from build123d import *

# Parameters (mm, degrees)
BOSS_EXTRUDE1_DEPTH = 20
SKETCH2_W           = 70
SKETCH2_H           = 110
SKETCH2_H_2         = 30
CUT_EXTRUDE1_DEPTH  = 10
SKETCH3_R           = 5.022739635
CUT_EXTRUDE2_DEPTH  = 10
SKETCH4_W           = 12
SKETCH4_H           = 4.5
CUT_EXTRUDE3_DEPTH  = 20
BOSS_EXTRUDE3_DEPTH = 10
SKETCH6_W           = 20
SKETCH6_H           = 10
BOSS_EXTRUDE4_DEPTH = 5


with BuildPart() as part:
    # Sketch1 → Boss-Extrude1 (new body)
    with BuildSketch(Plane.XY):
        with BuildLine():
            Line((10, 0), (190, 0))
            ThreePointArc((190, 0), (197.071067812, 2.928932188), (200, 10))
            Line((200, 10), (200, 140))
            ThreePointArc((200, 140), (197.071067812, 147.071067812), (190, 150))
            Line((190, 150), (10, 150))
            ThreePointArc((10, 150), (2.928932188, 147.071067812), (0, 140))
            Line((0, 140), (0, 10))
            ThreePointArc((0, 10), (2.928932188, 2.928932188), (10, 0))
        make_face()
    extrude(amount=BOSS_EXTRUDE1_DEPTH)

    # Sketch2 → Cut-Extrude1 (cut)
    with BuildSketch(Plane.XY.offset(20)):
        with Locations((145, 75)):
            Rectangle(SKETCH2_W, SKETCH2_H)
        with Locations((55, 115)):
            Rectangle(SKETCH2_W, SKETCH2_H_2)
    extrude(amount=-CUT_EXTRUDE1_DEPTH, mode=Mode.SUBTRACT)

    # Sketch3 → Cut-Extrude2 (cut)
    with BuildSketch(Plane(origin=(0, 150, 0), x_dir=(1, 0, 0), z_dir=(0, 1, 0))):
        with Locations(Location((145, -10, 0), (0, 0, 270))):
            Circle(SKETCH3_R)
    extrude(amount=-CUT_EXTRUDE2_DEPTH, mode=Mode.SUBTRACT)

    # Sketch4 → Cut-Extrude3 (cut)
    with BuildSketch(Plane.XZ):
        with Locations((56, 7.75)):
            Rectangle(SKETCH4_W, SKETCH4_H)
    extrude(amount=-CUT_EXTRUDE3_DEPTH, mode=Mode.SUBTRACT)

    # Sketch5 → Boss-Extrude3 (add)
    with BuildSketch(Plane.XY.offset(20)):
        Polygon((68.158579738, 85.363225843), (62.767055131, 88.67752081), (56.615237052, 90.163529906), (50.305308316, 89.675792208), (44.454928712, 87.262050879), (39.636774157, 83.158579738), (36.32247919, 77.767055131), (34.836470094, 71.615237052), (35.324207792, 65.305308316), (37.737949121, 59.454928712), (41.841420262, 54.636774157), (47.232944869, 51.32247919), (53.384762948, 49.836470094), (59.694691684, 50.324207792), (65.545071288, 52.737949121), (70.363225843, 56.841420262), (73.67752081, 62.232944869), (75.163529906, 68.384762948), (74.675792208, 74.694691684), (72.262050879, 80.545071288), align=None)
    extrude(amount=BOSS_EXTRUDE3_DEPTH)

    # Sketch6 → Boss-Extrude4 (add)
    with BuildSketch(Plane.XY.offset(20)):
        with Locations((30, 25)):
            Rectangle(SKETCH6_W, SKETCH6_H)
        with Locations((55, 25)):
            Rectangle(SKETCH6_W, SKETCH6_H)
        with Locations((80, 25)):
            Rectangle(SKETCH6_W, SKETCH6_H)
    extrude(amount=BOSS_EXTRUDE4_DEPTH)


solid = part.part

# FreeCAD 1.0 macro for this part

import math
import FreeCAD as App
import Part
import Sketcher
Q = App.Units.Quantity

doc = App.newDocument("Part")
body = doc.addObject("PartDesign::Body", "Body")

# Sketch on XY plane
sketch1 = body.newObject("Sketcher::SketchObject", "Sketch")
sketch1.AttachmentSupport = (doc.getObject("XY_Plane"), [""])
sketch1.MapMode = "FlatFace"
sketch1.addGeometry(Part.LineSegment(App.Vector(10, 0, 0), App.Vector(190, 0, 0)), False)
sketch1.addGeometry(Part.ArcOfCircle(Part.Circle(App.Vector(190, 10, 0), App.Vector(0, 0, 1), 10), math.radians(-90), math.radians(0)), False)
sketch1.addGeometry(Part.LineSegment(App.Vector(200, 10, 0), App.Vector(200, 140, 0)), False)
sketch1.addGeometry(Part.ArcOfCircle(Part.Circle(App.Vector(190, 140, 0), App.Vector(0, 0, 1), 10), math.radians(0), math.radians(90)), False)
sketch1.addGeometry(Part.LineSegment(App.Vector(190, 150, 0), App.Vector(10, 150, 0)), False)
sketch1.addGeometry(Part.ArcOfCircle(Part.Circle(App.Vector(10, 140, 0), App.Vector(0, 0, 1), 10), math.radians(90), math.radians(180)), False)
sketch1.addGeometry(Part.LineSegment(App.Vector(0, 140, 0), App.Vector(0, 10, 0)), False)
sketch1.addGeometry(Part.ArcOfCircle(Part.Circle(App.Vector(10, 10, 0), App.Vector(0, 0, 1), 10), math.radians(180), math.radians(270)), False)
sketch1.addConstraint(Sketcher.Constraint("Tangent", 0, 2, 1, 1))
sketch1.addConstraint(Sketcher.Constraint("Tangent", 1, 2, 2, 1))
sketch1.addConstraint(Sketcher.Constraint("Tangent", 2, 2, 3, 1))
sketch1.addConstraint(Sketcher.Constraint("Tangent", 3, 2, 4, 1))
sketch1.addConstraint(Sketcher.Constraint("Tangent", 4, 2, 5, 1))
sketch1.addConstraint(Sketcher.Constraint("Tangent", 5, 2, 6, 1))
sketch1.addConstraint(Sketcher.Constraint("Tangent", 6, 2, 7, 1))
sketch1.addConstraint(Sketcher.Constraint("Tangent", 7, 2, 0, 1))
sketch1.addConstraint(Sketcher.Constraint("Horizontal", 0))
sketch1.addConstraint(Sketcher.Constraint("Vertical", 2))
sketch1.addConstraint(Sketcher.Constraint("Horizontal", 4))
sketch1.addConstraint(Sketcher.Constraint("Vertical", 6))
sketch1.addConstraint(Sketcher.Constraint("Equal", 1, 3))
sketch1.addConstraint(Sketcher.Constraint("Equal", 3, 5))
sketch1.addConstraint(Sketcher.Constraint("Equal", 5, 7))
sketch1.addConstraint(Sketcher.Constraint("PointOnObject", 0, 2, -1))
sketch1.addConstraint(Sketcher.Constraint("PointOnObject", 5, 2, -2))
sketch1.addConstraint(Sketcher.Constraint("Radius", 1, 10.0))
sketch1.addConstraint(Sketcher.Constraint("DistanceX", 0, 1, 0, 2, 180.0))
sketch1.addConstraint(Sketcher.Constraint("DistanceY", 2, 1, 2, 2, 130.0))
pad1 = body.newObject("PartDesign::Pad", "Pad")
pad1.Profile = sketch1
pad1.Length = 20

# Sketch on XY plane
sketch2 = body.newObject("Sketcher::SketchObject", "Sketch001")
sketch2.AttachmentSupport = (doc.getObject("XY_Plane"), [""])
sketch2.MapMode = "FlatFace"
sketch2.AttachmentOffset = App.Placement(App.Vector(0, 0, 20), App.Rotation())
sketch2.addGeometry(Part.LineSegment(App.Vector(110, 130, 0), App.Vector(110, 20, 0)), False)
sketch2.addGeometry(Part.LineSegment(App.Vector(110, 20, 0), App.Vector(180, 20, 0)), False)
sketch2.addGeometry(Part.LineSegment(App.Vector(180, 20, 0), App.Vector(180, 130, 0)), False)
sketch2.addGeometry(Part.LineSegment(App.Vector(180, 130, 0), App.Vector(110, 130, 0)), False)
sketch2.addGeometry(Part.LineSegment(App.Vector(20, 130, 0), App.Vector(20, 100, 0)), False)
sketch2.addGeometry(Part.LineSegment(App.Vector(20, 100, 0), App.Vector(90, 100, 0)), False)
sketch2.addGeometry(Part.LineSegment(App.Vector(90, 100, 0), App.Vector(90, 130, 0)), False)
sketch2.addGeometry(Part.LineSegment(App.Vector(90, 130, 0), App.Vector(20, 130, 0)), False)
sketch2.addConstraint(Sketcher.Constraint("Coincident", 0, 2, 1, 1))
sketch2.addConstraint(Sketcher.Constraint("Coincident", 1, 2, 2, 1))
sketch2.addConstraint(Sketcher.Constraint("Coincident", 2, 2, 3, 1))
sketch2.addConstraint(Sketcher.Constraint("Coincident", 3, 2, 0, 1))
sketch2.addConstraint(Sketcher.Constraint("Coincident", 4, 2, 5, 1))
sketch2.addConstraint(Sketcher.Constraint("Coincident", 5, 2, 6, 1))
sketch2.addConstraint(Sketcher.Constraint("Coincident", 6, 2, 7, 1))
sketch2.addConstraint(Sketcher.Constraint("Coincident", 7, 2, 4, 1))
sketch2.addConstraint(Sketcher.Constraint("Vertical", 0))
sketch2.addConstraint(Sketcher.Constraint("Horizontal", 1))
sketch2.addConstraint(Sketcher.Constraint("Vertical", 2))
sketch2.addConstraint(Sketcher.Constraint("Horizontal", 3))
sketch2.addConstraint(Sketcher.Constraint("Vertical", 4))
sketch2.addConstraint(Sketcher.Constraint("Horizontal", 5))
sketch2.addConstraint(Sketcher.Constraint("Vertical", 6))
sketch2.addConstraint(Sketcher.Constraint("Horizontal", 7))
sketch2.addConstraint(Sketcher.Constraint("Horizontal", 3, 2, 6, 2))
sketch2.addConstraint(Sketcher.Constraint("Equal", 3, 5))
sketch2.addConstraint(Sketcher.Constraint("DistanceX", 1, 1, 1, 2, 70.0))
sketch2.addConstraint(Sketcher.Constraint("DistanceY", 0, 2, 0, 1, 110.0))
sketch2.addConstraint(Sketcher.Constraint("DistanceY", 4, 2, 4, 1, 30.0))
sketch2.addConstraint(Sketcher.Constraint("DistanceX", -1, 1, 0, 2, 110.0))
sketch2.addConstraint(Sketcher.Constraint("DistanceY", -1, 1, 0, 2, 20.0))
sketch2.addConstraint(Sketcher.Constraint("DistanceX", -1, 1, 4, 2, 20.0))
pocket1 = body.newObject("PartDesign::Pocket", "Pocket")
pocket1.Profile = sketch2
pocket1.Length = 10

# Sketch on XZ plane
sketch3 = body.newObject("Sketcher::SketchObject", "Sketch002")
sketch3.AttachmentSupport = (doc.getObject("XZ_Plane"), [""])
sketch3.MapMode = "FlatFace"
sketch3.AttachmentOffset = App.Placement(App.Vector(0, 0, -150), App.Rotation())
sketch3.addGeometry(Part.Circle(App.Vector(145, 10, 0), App.Vector(0, 0, 1), 5), False)
sketch3.addConstraint(Sketcher.Constraint("DistanceX", -1, 1, 0, 3, 145.0))
sketch3.addConstraint(Sketcher.Constraint("DistanceY", -1, 1, 0, 3, 10.0))
sketch3.addConstraint(Sketcher.Constraint("Diameter", 0, 10.045479))
pocket2 = body.newObject("PartDesign::Pocket", "Pocket001")
pocket2.Profile = sketch3
pocket2.Length = 10
pocket2.Reversed = True

# Sketch on XZ plane
sketch4 = body.newObject("Sketcher::SketchObject", "Sketch003")
sketch4.AttachmentSupport = (doc.getObject("XZ_Plane"), [""])
sketch4.MapMode = "FlatFace"
sketch4.addGeometry(Part.LineSegment(App.Vector(50, 10, 0), App.Vector(50, 5.5, 0)), False)
sketch4.addGeometry(Part.LineSegment(App.Vector(50, 5.5, 0), App.Vector(62, 5.5, 0)), False)
sketch4.addGeometry(Part.LineSegment(App.Vector(62, 5.5, 0), App.Vector(62, 10, 0)), False)
sketch4.addGeometry(Part.LineSegment(App.Vector(62, 10, 0), App.Vector(50, 10, 0)), False)
sketch4.addConstraint(Sketcher.Constraint("Coincident", 0, 2, 1, 1))
sketch4.addConstraint(Sketcher.Constraint("Coincident", 1, 2, 2, 1))
sketch4.addConstraint(Sketcher.Constraint("Coincident", 2, 2, 3, 1))
sketch4.addConstraint(Sketcher.Constraint("Coincident", 3, 2, 0, 1))
sketch4.addConstraint(Sketcher.Constraint("Vertical", 0))
sketch4.addConstraint(Sketcher.Constraint("Horizontal", 1))
sketch4.addConstraint(Sketcher.Constraint("Vertical", 2))
sketch4.addConstraint(Sketcher.Constraint("Horizontal", 3))
sketch4.addConstraint(Sketcher.Constraint("DistanceX", 1, 1, 1, 2, 12.0))
sketch4.addConstraint(Sketcher.Constraint("DistanceY", 0, 2, 0, 1, 4.5))
sketch4.addConstraint(Sketcher.Constraint("DistanceX", -1, 1, 0, 2, 50.0))
sketch4.addConstraint(Sketcher.Constraint("DistanceY", -1, 1, 2, 2, 10.0))
pocket3 = body.newObject("PartDesign::Pocket", "Pocket002")
pocket3.Profile = sketch4
pocket3.Length = 20

# Sketch on XY plane
sketch5 = body.newObject("Sketcher::SketchObject", "Sketch004")
sketch5.AttachmentSupport = (doc.getObject("XY_Plane"), [""])
sketch5.MapMode = "FlatFace"
sketch5.AttachmentOffset = App.Placement(App.Vector(0, 0, 20), App.Rotation())
sketch5.addGeometry(Part.LineSegment(App.Vector(68, 85, 0), App.Vector(63, 89, 0)), False)
sketch5.addGeometry(Part.LineSegment(App.Vector(63, 89, 0), App.Vector(57, 90, 0)), False)
sketch5.addGeometry(Part.LineSegment(App.Vector(57, 90, 0), App.Vector(50, 90, 0)), False)
sketch5.addGeometry(Part.LineSegment(App.Vector(50, 90, 0), App.Vector(44, 87, 0)), False)
sketch5.addGeometry(Part.LineSegment(App.Vector(44, 87, 0), App.Vector(40, 83, 0)), False)
sketch5.addGeometry(Part.LineSegment(App.Vector(40, 83, 0), App.Vector(36, 78, 0)), False)
sketch5.addGeometry(Part.LineSegment(App.Vector(36, 78, 0), App.Vector(35, 72, 0)), False)
sketch5.addGeometry(Part.LineSegment(App.Vector(35, 72, 0), App.Vector(35, 65, 0)), False)
sketch5.addGeometry(Part.LineSegment(App.Vector(35, 65, 0), App.Vector(38, 59, 0)), False)
sketch5.addGeometry(Part.LineSegment(App.Vector(38, 59, 0), App.Vector(42, 55, 0)), False)
sketch5.addGeometry(Part.LineSegment(App.Vector(42, 55, 0), App.Vector(47, 51, 0)), False)
sketch5.addGeometry(Part.LineSegment(App.Vector(47, 51, 0), App.Vector(53, 50, 0)), False)
sketch5.addGeometry(Part.LineSegment(App.Vector(53, 50, 0), App.Vector(60, 50, 0)), False)
sketch5.addGeometry(Part.LineSegment(App.Vector(60, 50, 0), App.Vector(66, 53, 0)), False)
sketch5.addGeometry(Part.LineSegment(App.Vector(66, 53, 0), App.Vector(70, 57, 0)), False)
sketch5.addGeometry(Part.LineSegment(App.Vector(70, 57, 0), App.Vector(74, 62, 0)), False)
sketch5.addGeometry(Part.LineSegment(App.Vector(74, 62, 0), App.Vector(75, 68, 0)), False)
sketch5.addGeometry(Part.LineSegment(App.Vector(75, 68, 0), App.Vector(75, 75, 0)), False)
sketch5.addGeometry(Part.LineSegment(App.Vector(75, 75, 0), App.Vector(72, 81, 0)), False)
sketch5.addGeometry(Part.LineSegment(App.Vector(72, 81, 0), App.Vector(68, 85, 0)), False)
sketch5.addConstraint(Sketcher.Constraint("Coincident", 0, 2, 1, 1))
sketch5.addConstraint(Sketcher.Constraint("Coincident", 1, 2, 2, 1))
sketch5.addConstraint(Sketcher.Constraint("Coincident", 2, 2, 3, 1))
sketch5.addConstraint(Sketcher.Constraint("Coincident", 3, 2, 4, 1))
sketch5.addConstraint(Sketcher.Constraint("Coincident", 4, 2, 5, 1))
sketch5.addConstraint(Sketcher.Constraint("Coincident", 5, 2, 6, 1))
sketch5.addConstraint(Sketcher.Constraint("Coincident", 6, 2, 7, 1))
sketch5.addConstraint(Sketcher.Constraint("Coincident", 7, 2, 8, 1))
sketch5.addConstraint(Sketcher.Constraint("Coincident", 8, 2, 9, 1))
sketch5.addConstraint(Sketcher.Constraint("Coincident", 9, 2, 10, 1))
sketch5.addConstraint(Sketcher.Constraint("Coincident", 10, 2, 11, 1))
sketch5.addConstraint(Sketcher.Constraint("Coincident", 11, 2, 12, 1))
sketch5.addConstraint(Sketcher.Constraint("Coincident", 12, 2, 13, 1))
sketch5.addConstraint(Sketcher.Constraint("Coincident", 13, 2, 14, 1))
sketch5.addConstraint(Sketcher.Constraint("Coincident", 14, 2, 15, 1))
sketch5.addConstraint(Sketcher.Constraint("Coincident", 15, 2, 16, 1))
sketch5.addConstraint(Sketcher.Constraint("Coincident", 16, 2, 17, 1))
sketch5.addConstraint(Sketcher.Constraint("Coincident", 17, 2, 18, 1))
sketch5.addConstraint(Sketcher.Constraint("Coincident", 18, 2, 19, 1))
sketch5.addConstraint(Sketcher.Constraint("Coincident", 19, 2, 0, 1))
sketch5.addConstraint(Sketcher.Constraint("Perpendicular", 0, 5))
sketch5.addConstraint(Sketcher.Constraint("Perpendicular", 1, 6))
sketch5.addConstraint(Sketcher.Constraint("Perpendicular", 2, 7))
sketch5.addConstraint(Sketcher.Constraint("Perpendicular", 3, 8))
sketch5.addConstraint(Sketcher.Constraint("Perpendicular", 4, 9))
sketch5.addConstraint(Sketcher.Constraint("Perpendicular", 5, 10))
sketch5.addConstraint(Sketcher.Constraint("Perpendicular", 6, 11))
sketch5.addConstraint(Sketcher.Constraint("Perpendicular", 7, 12))
sketch5.addConstraint(Sketcher.Constraint("Perpendicular", 8, 13))
sketch5.addConstraint(Sketcher.Constraint("Perpendicular", 9, 14))
sketch5.addConstraint(Sketcher.Constraint("Perpendicular", 10, 15))
sketch5.addConstraint(Sketcher.Constraint("Perpendicular", 11, 16))
sketch5.addConstraint(Sketcher.Constraint("Perpendicular", 12, 17))
sketch5.addConstraint(Sketcher.Constraint("Perpendicular", 13, 18))
sketch5.addConstraint(Sketcher.Constraint("Perpendicular", 14, 19))
sketch5.addConstraint(Sketcher.Constraint("Equal", 0, 1))
sketch5.addConstraint(Sketcher.Constraint("Equal", 1, 2))
sketch5.addConstraint(Sketcher.Constraint("Equal", 2, 3))
sketch5.addConstraint(Sketcher.Constraint("Equal", 3, 4))
sketch5.addConstraint(Sketcher.Constraint("Equal", 4, 5))
sketch5.addConstraint(Sketcher.Constraint("Equal", 5, 6))
sketch5.addConstraint(Sketcher.Constraint("Equal", 6, 7))
sketch5.addConstraint(Sketcher.Constraint("Equal", 7, 8))
sketch5.addConstraint(Sketcher.Constraint("Equal", 8, 9))
sketch5.addConstraint(Sketcher.Constraint("Equal", 9, 10))
sketch5.addConstraint(Sketcher.Constraint("Equal", 10, 11))
sketch5.addConstraint(Sketcher.Constraint("Equal", 11, 12))
sketch5.addConstraint(Sketcher.Constraint("Equal", 12, 13))
sketch5.addConstraint(Sketcher.Constraint("Equal", 13, 14))
sketch5.addConstraint(Sketcher.Constraint("Equal", 14, 15))
sketch5.addConstraint(Sketcher.Constraint("Equal", 15, 16))
sketch5.addConstraint(Sketcher.Constraint("Equal", 16, 17))
sketch5.addConstraint(Sketcher.Constraint("Angle", 0, Q("148.419995 deg")))
sketch5.addConstraint(Sketcher.Constraint("Angle", 1, Q("166.419995 deg")))
sketch5.addConstraint(Sketcher.Constraint("Angle", 2, Q("-175.580005 deg")))
sketch5.addConstraint(Sketcher.Constraint("Angle", 3, Q("-157.580005 deg")))
sketch5.addConstraint(Sketcher.Constraint("Angle", 4, Q("-139.580005 deg")))
sketch5.addConstraint(Sketcher.Constraint("DistanceX", 7, 2, 2, 2, 14.981101))
sketch5.addConstraint(Sketcher.Constraint("DistanceY", -1, 1, 0, 2, 88.677521))
sketch5.addConstraint(Sketcher.Constraint("DistanceX", -1, 1, 2, 2, 50.305308))
pad2 = body.newObject("PartDesign::Pad", "Pad001")
pad2.Profile = sketch5
pad2.Length = 10

# Sketch on XY plane
sketch6 = body.newObject("Sketcher::SketchObject", "Sketch005")
sketch6.AttachmentSupport = (doc.getObject("XY_Plane"), [""])
sketch6.MapMode = "FlatFace"
sketch6.AttachmentOffset = App.Placement(App.Vector(0, 0, 20), App.Rotation())
sketch6.addGeometry(Part.LineSegment(App.Vector(20, 30, 0), App.Vector(20, 20, 0)), False)
sketch6.addGeometry(Part.LineSegment(App.Vector(20, 20, 0), App.Vector(40, 20, 0)), False)
sketch6.addGeometry(Part.LineSegment(App.Vector(40, 20, 0), App.Vector(40, 30, 0)), False)
sketch6.addGeometry(Part.LineSegment(App.Vector(40, 30, 0), App.Vector(20, 30, 0)), False)
sketch6.addGeometry(Part.LineSegment(App.Vector(45, 30, 0), App.Vector(45, 20, 0)), False)
sketch6.addGeometry(Part.LineSegment(App.Vector(45, 20, 0), App.Vector(65, 20, 0)), False)
sketch6.addGeometry(Part.LineSegment(App.Vector(65, 20, 0), App.Vector(65, 30, 0)), False)
sketch6.addGeometry(Part.LineSegment(App.Vector(65, 30, 0), App.Vector(45, 30, 0)), False)
sketch6.addGeometry(Part.LineSegment(App.Vector(70, 30, 0), App.Vector(70, 20, 0)), False)
sketch6.addGeometry(Part.LineSegment(App.Vector(70, 20, 0), App.Vector(90, 20, 0)), False)
sketch6.addGeometry(Part.LineSegment(App.Vector(90, 20, 0), App.Vector(90, 30, 0)), False)
sketch6.addGeometry(Part.LineSegment(App.Vector(90, 30, 0), App.Vector(70, 30, 0)), False)
sketch6.addConstraint(Sketcher.Constraint("Coincident", 0, 2, 1, 1))
sketch6.addConstraint(Sketcher.Constraint("Coincident", 1, 2, 2, 1))
sketch6.addConstraint(Sketcher.Constraint("Coincident", 2, 2, 3, 1))
sketch6.addConstraint(Sketcher.Constraint("Coincident", 3, 2, 0, 1))
sketch6.addConstraint(Sketcher.Constraint("Coincident", 4, 2, 5, 1))
sketch6.addConstraint(Sketcher.Constraint("Coincident", 5, 2, 6, 1))
sketch6.addConstraint(Sketcher.Constraint("Coincident", 6, 2, 7, 1))
sketch6.addConstraint(Sketcher.Constraint("Coincident", 7, 2, 4, 1))
sketch6.addConstraint(Sketcher.Constraint("Coincident", 8, 2, 9, 1))
sketch6.addConstraint(Sketcher.Constraint("Coincident", 9, 2, 10, 1))
sketch6.addConstraint(Sketcher.Constraint("Coincident", 10, 2, 11, 1))
sketch6.addConstraint(Sketcher.Constraint("Coincident", 11, 2, 8, 1))
sketch6.addConstraint(Sketcher.Constraint("Vertical", 0))
sketch6.addConstraint(Sketcher.Constraint("Horizontal", 1))
sketch6.addConstraint(Sketcher.Constraint("Vertical", 2))
sketch6.addConstraint(Sketcher.Constraint("Horizontal", 3))
sketch6.addConstraint(Sketcher.Constraint("Vertical", 4))
sketch6.addConstraint(Sketcher.Constraint("Horizontal", 5))
sketch6.addConstraint(Sketcher.Constraint("Vertical", 6))
sketch6.addConstraint(Sketcher.Constraint("Horizontal", 7))
sketch6.addConstraint(Sketcher.Constraint("Vertical", 8))
sketch6.addConstraint(Sketcher.Constraint("Horizontal", 9))
sketch6.addConstraint(Sketcher.Constraint("Vertical", 10))
sketch6.addConstraint(Sketcher.Constraint("Horizontal", 11))
sketch6.addConstraint(Sketcher.Constraint("Horizontal", 1, 2, 4, 2))
sketch6.addConstraint(Sketcher.Constraint("Horizontal", 3, 2, 6, 2))
sketch6.addConstraint(Sketcher.Constraint("Horizontal", 5, 2, 8, 2))
sketch6.addConstraint(Sketcher.Constraint("Horizontal", 7, 2, 10, 2))
sketch6.addConstraint(Sketcher.Constraint("Equal", 3, 5))
sketch6.addConstraint(Sketcher.Constraint("Equal", 7, 9))
sketch6.addConstraint(Sketcher.Constraint("DistanceX", 1, 1, 1, 2, 20.0))
sketch6.addConstraint(Sketcher.Constraint("DistanceY", 0, 2, 0, 1, 10.0))
sketch6.addConstraint(Sketcher.Constraint("DistanceX", -1, 1, 0, 2, 20.0))
sketch6.addConstraint(Sketcher.Constraint("DistanceY", -1, 1, 0, 2, 20.0))
sketch6.addConstraint(Sketcher.Constraint("DistanceX", -1, 1, 4, 2, 45.0))
sketch6.addConstraint(Sketcher.Constraint("DistanceX", -1, 1, 8, 2, 70.0))
pad3 = body.newObject("PartDesign::Pad", "Pad002")
pad3.Profile = sketch6
pad3.Length = 5

doc.recompute()
